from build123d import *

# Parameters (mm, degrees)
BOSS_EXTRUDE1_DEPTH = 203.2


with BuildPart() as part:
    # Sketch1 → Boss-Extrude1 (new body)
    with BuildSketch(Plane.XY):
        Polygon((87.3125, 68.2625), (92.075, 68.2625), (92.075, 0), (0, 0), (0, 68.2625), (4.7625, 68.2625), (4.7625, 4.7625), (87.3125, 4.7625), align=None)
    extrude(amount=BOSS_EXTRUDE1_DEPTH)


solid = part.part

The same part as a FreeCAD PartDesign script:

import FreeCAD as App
import Part
import Sketcher
from FreeCAD import Vector
Q = App.Units.Quantity


def add_polygon(sketch, points):
    """Adds a closed chain of lines whose ends are joined by coincident constraints."""
    first, n = sketch.GeometryCount, len(points)
    for a, b in zip(points, points[1:] + points[:1]):
        sketch.addGeometry(Part.LineSegment(App.Vector(*a, 0), App.Vector(*b, 0)), False)
    for i in range(n):
        sketch.addConstraint(Sketcher.Constraint("Coincident", first + i, 2, first + (i + 1) % n, 1))

doc = App.newDocument("Part")
params = doc.addObject("Spreadsheet::Sheet", "Params")
for row, (alias, value) in enumerate([
    ("sketch1_height", "2.5 in"),
    ("sketch1_width", "3.25 in"),
    ("sketch1_width2", "0.1875 in"),
    ("sketch1_height2", "2.6875 in"),
    ("pad1_length", "8 in"),
], start=1):
    params.set(f"A{row}", alias)
    params.set(f"B{row}", "=" + value)
    params.setAlias(f"B{row}", alias)

body = doc.addObject("PartDesign::Body", "Body")

sketch1 = body.newObject("Sketcher::SketchObject", "Sketch")
sketch1.AttachmentSupport = (doc.getObject("XY_Plane"), [""])
sketch1.MapMode = "FlatFace"
add_polygon(sketch1, [(92.1, 68.3), (87.3, 68.3), (87.3, 4.8), (4.8, 4.8), (4.8, 68.3), (0, 68.3), (0, 0), (92.1, 0)])
sketch1.addConstraint([
    Sketcher.Constraint("Horizontal", 0),
    Sketcher.Constraint("Vertical", 1),
    Sketcher.Constraint("Horizontal", 2),
    Sketcher.Constraint("Vertical", 3),
    Sketcher.Constraint("Horizontal", 4),
    Sketcher.Constraint("Vertical", 5),
    Sketcher.Constraint("Horizontal", 6),
    Sketcher.Constraint("Vertical", 7),
    Sketcher.Constraint("Coincident", 5, 2, -1, 1),
    Sketcher.Constraint("Horizontal", 0, 2, 3, 2),
    Sketcher.Constraint("Equal", 0, 4),
    Sketcher.Constraint("DistanceY", 1, 2, 1, 1, Q("2.5 in")),
    Sketcher.Constraint("DistanceX", 2, 2, 2, 1, Q("3.25 in")),
    Sketcher.Constraint("DistanceX", 0, 2, 0, 1, Q("0.1875 in")),
    Sketcher.Constraint("DistanceY", 5, 2, 5, 1, Q("2.6875 in")),
])
sketch1.setExpression("Constraints[19]", "Params.sketch1_height")
sketch1.setExpression("Constraints[20]", "Params.sketch1_width")
sketch1.setExpression("Constraints[21]", "Params.sketch1_width2")
sketch1.setExpression("Constraints[22]", "Params.sketch1_height2")
pad1 = body.newObject("PartDesign::Pad", "Pad")
pad1.Profile = sketch1
pad1.setExpression("Length", "Params.pad1_length")

doc.recompute()
